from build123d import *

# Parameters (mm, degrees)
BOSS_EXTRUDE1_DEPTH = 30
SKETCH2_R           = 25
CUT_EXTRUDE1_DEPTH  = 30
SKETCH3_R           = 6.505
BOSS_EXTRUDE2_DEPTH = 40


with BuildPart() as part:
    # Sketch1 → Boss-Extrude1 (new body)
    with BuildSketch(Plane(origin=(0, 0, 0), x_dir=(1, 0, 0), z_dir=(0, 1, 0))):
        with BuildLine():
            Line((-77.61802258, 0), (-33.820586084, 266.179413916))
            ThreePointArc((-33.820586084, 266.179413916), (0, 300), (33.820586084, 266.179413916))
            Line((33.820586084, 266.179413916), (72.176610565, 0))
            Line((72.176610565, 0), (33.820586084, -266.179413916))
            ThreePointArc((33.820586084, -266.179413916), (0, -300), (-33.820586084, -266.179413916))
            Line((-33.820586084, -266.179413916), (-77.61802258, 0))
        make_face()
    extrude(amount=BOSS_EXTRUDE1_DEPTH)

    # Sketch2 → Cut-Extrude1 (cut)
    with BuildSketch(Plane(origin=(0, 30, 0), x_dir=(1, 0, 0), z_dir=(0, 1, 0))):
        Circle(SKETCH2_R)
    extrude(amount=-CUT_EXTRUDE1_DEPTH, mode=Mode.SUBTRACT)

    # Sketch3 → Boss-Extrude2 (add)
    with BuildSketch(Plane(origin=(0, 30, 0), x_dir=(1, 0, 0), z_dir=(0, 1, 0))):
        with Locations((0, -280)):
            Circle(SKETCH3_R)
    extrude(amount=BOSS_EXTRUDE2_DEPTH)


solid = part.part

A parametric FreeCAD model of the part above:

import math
import FreeCAD as App
import Part
import Sketcher
from FreeCAD import Vector
Q = App.Units.Quantity

doc = App.newDocument("Part")
body = doc.addObject("PartDesign::Body", "Body")

# Sketch on XZ plane
sketch1 = body.newObject("Sketcher::SketchObject", "Sketch")
sketch1.AttachmentSupport = (doc.getObject("XZ_Plane"), [""])
sketch1.MapMode = "FlatFace"
sketch1.addGeometry([
    Part.LineSegment(Vector(-33.820586, -266.179414, 0), Vector(-77.618023, 0, 0)),  # 0
    Part.LineSegment(Vector(-77.618023, 0, 0), Vector(-33.820586, 266.179414, 0)),  # 1
    Part.ArcOfCircle(Part.Circle(Vector(0, 266.179414, 0), Vector(0, 0, 1), 33.820586), math.radians(0), math.radians(180)),  # 2
    Part.LineSegment(Vector(33.820586, 266.179414, 0), Vector(72.176611, 0, 0)),  # 3
    Part.LineSegment(Vector(72.176611, 0, 0), Vector(33.820586, -266.179414, 0)),  # 4
    Part.ArcOfCircle(Part.Circle(Vector(0, -266.179414, 0), Vector(0, 0, 1), 33.820586), math.radians(180), math.radians(360)),  # 5
], False)
sketch1.addConstraint([
    Sketcher.Constraint("Coincident", 0, 2, 1, 1),
    Sketcher.Constraint("Coincident", 1, 2, 2, 2),
    Sketcher.Constraint("Coincident", 2, 1, 3, 1),
    Sketcher.Constraint("Coincident", 3, 2, 4, 1),
    Sketcher.Constraint("Coincident", 4, 2, 5, 2),
    Sketcher.Constraint("Coincident", 5, 1, 0, 1),
    Sketcher.Constraint("Equal", 2, 5),
    Sketcher.Constraint("Symmetric", 2, 3, 5, 3, -1, 1),
    Sketcher.Constraint("Symmetric", 1, 2, 2, 1, -2),
    Sketcher.Constraint("PointOnObject", 0, 2, -1),
    Sketcher.Constraint("PointOnObject", 3, 2, -1),
    Sketcher.Constraint("Horizontal", 2, 3, 1, 2),
    Sketcher.Constraint("Horizontal", 5, 3, 4, 2),
    Sketcher.Constraint("Horizontal", 4, 2, 5, 1),
    Sketcher.Constraint("Radius", 2, Q("33.820586 mm")),
    Sketcher.Constraint("Distance", 0, Q("269.758588 mm")),
    Sketcher.Constraint("DistanceX", -1, 1, 3, 2, Q("72.176611 mm")),
    Sketcher.Constraint("DistanceX", 0, 2, 2, 1, Q("111.438609 mm")),
])
pad1 = body.newObject("PartDesign::Pad", "Pad")
pad1.Profile = sketch1
pad1.Length = 30
pad1.Reversed = True

# Sketch on XZ plane
sketch2 = body.newObject("Sketcher::SketchObject", "Sketch001")
sketch2.AttachmentSupport = (doc.getObject("XZ_Plane"), [""])
sketch2.MapMode = "FlatFace"
sketch2.AttachmentOffset = App.Placement(Vector(0, 0, -30), App.Rotation())
sketch2.addGeometry(Part.Circle(Vector(0, 0, 0), Vector(0, 0, 1), 25), False)
sketch2.addConstraint([
    Sketcher.Constraint("Coincident", 0, 3, -1, 1),
    Sketcher.Constraint("Diameter", 0, Q("50 mm")),
])
pocket1 = body.newObject("PartDesign::Pocket", "Pocket")
pocket1.Profile = sketch2
pocket1.Length = 30
pocket1.Reversed = True

# Sketch on XZ plane
sketch3 = body.newObject("Sketcher::SketchObject", "Sketch002")
sketch3.AttachmentSupport = (doc.getObject("XZ_Plane"), [""])
sketch3.MapMode = "FlatFace"
sketch3.AttachmentOffset = App.Placement(Vector(0, 0, -30), App.Rotation())
sketch3.addGeometry(Part.Circle(Vector(0, 280, 0), Vector(0, 0, 1), 6.505), False)
sketch3.addConstraint([
    Sketcher.Constraint("PointOnObject", 0, 3, -2),
    Sketcher.Constraint("Diameter", 0, Q("13.01 mm")),
    Sketcher.Constraint("DistanceY", -1, 1, 0, 3, Q("280 mm")),
])
pad2 = body.newObject("PartDesign::Pad", "Pad001")
pad2.Profile = sketch3
pad2.Length = 40
pad2.Reversed = True

doc.recompute()
